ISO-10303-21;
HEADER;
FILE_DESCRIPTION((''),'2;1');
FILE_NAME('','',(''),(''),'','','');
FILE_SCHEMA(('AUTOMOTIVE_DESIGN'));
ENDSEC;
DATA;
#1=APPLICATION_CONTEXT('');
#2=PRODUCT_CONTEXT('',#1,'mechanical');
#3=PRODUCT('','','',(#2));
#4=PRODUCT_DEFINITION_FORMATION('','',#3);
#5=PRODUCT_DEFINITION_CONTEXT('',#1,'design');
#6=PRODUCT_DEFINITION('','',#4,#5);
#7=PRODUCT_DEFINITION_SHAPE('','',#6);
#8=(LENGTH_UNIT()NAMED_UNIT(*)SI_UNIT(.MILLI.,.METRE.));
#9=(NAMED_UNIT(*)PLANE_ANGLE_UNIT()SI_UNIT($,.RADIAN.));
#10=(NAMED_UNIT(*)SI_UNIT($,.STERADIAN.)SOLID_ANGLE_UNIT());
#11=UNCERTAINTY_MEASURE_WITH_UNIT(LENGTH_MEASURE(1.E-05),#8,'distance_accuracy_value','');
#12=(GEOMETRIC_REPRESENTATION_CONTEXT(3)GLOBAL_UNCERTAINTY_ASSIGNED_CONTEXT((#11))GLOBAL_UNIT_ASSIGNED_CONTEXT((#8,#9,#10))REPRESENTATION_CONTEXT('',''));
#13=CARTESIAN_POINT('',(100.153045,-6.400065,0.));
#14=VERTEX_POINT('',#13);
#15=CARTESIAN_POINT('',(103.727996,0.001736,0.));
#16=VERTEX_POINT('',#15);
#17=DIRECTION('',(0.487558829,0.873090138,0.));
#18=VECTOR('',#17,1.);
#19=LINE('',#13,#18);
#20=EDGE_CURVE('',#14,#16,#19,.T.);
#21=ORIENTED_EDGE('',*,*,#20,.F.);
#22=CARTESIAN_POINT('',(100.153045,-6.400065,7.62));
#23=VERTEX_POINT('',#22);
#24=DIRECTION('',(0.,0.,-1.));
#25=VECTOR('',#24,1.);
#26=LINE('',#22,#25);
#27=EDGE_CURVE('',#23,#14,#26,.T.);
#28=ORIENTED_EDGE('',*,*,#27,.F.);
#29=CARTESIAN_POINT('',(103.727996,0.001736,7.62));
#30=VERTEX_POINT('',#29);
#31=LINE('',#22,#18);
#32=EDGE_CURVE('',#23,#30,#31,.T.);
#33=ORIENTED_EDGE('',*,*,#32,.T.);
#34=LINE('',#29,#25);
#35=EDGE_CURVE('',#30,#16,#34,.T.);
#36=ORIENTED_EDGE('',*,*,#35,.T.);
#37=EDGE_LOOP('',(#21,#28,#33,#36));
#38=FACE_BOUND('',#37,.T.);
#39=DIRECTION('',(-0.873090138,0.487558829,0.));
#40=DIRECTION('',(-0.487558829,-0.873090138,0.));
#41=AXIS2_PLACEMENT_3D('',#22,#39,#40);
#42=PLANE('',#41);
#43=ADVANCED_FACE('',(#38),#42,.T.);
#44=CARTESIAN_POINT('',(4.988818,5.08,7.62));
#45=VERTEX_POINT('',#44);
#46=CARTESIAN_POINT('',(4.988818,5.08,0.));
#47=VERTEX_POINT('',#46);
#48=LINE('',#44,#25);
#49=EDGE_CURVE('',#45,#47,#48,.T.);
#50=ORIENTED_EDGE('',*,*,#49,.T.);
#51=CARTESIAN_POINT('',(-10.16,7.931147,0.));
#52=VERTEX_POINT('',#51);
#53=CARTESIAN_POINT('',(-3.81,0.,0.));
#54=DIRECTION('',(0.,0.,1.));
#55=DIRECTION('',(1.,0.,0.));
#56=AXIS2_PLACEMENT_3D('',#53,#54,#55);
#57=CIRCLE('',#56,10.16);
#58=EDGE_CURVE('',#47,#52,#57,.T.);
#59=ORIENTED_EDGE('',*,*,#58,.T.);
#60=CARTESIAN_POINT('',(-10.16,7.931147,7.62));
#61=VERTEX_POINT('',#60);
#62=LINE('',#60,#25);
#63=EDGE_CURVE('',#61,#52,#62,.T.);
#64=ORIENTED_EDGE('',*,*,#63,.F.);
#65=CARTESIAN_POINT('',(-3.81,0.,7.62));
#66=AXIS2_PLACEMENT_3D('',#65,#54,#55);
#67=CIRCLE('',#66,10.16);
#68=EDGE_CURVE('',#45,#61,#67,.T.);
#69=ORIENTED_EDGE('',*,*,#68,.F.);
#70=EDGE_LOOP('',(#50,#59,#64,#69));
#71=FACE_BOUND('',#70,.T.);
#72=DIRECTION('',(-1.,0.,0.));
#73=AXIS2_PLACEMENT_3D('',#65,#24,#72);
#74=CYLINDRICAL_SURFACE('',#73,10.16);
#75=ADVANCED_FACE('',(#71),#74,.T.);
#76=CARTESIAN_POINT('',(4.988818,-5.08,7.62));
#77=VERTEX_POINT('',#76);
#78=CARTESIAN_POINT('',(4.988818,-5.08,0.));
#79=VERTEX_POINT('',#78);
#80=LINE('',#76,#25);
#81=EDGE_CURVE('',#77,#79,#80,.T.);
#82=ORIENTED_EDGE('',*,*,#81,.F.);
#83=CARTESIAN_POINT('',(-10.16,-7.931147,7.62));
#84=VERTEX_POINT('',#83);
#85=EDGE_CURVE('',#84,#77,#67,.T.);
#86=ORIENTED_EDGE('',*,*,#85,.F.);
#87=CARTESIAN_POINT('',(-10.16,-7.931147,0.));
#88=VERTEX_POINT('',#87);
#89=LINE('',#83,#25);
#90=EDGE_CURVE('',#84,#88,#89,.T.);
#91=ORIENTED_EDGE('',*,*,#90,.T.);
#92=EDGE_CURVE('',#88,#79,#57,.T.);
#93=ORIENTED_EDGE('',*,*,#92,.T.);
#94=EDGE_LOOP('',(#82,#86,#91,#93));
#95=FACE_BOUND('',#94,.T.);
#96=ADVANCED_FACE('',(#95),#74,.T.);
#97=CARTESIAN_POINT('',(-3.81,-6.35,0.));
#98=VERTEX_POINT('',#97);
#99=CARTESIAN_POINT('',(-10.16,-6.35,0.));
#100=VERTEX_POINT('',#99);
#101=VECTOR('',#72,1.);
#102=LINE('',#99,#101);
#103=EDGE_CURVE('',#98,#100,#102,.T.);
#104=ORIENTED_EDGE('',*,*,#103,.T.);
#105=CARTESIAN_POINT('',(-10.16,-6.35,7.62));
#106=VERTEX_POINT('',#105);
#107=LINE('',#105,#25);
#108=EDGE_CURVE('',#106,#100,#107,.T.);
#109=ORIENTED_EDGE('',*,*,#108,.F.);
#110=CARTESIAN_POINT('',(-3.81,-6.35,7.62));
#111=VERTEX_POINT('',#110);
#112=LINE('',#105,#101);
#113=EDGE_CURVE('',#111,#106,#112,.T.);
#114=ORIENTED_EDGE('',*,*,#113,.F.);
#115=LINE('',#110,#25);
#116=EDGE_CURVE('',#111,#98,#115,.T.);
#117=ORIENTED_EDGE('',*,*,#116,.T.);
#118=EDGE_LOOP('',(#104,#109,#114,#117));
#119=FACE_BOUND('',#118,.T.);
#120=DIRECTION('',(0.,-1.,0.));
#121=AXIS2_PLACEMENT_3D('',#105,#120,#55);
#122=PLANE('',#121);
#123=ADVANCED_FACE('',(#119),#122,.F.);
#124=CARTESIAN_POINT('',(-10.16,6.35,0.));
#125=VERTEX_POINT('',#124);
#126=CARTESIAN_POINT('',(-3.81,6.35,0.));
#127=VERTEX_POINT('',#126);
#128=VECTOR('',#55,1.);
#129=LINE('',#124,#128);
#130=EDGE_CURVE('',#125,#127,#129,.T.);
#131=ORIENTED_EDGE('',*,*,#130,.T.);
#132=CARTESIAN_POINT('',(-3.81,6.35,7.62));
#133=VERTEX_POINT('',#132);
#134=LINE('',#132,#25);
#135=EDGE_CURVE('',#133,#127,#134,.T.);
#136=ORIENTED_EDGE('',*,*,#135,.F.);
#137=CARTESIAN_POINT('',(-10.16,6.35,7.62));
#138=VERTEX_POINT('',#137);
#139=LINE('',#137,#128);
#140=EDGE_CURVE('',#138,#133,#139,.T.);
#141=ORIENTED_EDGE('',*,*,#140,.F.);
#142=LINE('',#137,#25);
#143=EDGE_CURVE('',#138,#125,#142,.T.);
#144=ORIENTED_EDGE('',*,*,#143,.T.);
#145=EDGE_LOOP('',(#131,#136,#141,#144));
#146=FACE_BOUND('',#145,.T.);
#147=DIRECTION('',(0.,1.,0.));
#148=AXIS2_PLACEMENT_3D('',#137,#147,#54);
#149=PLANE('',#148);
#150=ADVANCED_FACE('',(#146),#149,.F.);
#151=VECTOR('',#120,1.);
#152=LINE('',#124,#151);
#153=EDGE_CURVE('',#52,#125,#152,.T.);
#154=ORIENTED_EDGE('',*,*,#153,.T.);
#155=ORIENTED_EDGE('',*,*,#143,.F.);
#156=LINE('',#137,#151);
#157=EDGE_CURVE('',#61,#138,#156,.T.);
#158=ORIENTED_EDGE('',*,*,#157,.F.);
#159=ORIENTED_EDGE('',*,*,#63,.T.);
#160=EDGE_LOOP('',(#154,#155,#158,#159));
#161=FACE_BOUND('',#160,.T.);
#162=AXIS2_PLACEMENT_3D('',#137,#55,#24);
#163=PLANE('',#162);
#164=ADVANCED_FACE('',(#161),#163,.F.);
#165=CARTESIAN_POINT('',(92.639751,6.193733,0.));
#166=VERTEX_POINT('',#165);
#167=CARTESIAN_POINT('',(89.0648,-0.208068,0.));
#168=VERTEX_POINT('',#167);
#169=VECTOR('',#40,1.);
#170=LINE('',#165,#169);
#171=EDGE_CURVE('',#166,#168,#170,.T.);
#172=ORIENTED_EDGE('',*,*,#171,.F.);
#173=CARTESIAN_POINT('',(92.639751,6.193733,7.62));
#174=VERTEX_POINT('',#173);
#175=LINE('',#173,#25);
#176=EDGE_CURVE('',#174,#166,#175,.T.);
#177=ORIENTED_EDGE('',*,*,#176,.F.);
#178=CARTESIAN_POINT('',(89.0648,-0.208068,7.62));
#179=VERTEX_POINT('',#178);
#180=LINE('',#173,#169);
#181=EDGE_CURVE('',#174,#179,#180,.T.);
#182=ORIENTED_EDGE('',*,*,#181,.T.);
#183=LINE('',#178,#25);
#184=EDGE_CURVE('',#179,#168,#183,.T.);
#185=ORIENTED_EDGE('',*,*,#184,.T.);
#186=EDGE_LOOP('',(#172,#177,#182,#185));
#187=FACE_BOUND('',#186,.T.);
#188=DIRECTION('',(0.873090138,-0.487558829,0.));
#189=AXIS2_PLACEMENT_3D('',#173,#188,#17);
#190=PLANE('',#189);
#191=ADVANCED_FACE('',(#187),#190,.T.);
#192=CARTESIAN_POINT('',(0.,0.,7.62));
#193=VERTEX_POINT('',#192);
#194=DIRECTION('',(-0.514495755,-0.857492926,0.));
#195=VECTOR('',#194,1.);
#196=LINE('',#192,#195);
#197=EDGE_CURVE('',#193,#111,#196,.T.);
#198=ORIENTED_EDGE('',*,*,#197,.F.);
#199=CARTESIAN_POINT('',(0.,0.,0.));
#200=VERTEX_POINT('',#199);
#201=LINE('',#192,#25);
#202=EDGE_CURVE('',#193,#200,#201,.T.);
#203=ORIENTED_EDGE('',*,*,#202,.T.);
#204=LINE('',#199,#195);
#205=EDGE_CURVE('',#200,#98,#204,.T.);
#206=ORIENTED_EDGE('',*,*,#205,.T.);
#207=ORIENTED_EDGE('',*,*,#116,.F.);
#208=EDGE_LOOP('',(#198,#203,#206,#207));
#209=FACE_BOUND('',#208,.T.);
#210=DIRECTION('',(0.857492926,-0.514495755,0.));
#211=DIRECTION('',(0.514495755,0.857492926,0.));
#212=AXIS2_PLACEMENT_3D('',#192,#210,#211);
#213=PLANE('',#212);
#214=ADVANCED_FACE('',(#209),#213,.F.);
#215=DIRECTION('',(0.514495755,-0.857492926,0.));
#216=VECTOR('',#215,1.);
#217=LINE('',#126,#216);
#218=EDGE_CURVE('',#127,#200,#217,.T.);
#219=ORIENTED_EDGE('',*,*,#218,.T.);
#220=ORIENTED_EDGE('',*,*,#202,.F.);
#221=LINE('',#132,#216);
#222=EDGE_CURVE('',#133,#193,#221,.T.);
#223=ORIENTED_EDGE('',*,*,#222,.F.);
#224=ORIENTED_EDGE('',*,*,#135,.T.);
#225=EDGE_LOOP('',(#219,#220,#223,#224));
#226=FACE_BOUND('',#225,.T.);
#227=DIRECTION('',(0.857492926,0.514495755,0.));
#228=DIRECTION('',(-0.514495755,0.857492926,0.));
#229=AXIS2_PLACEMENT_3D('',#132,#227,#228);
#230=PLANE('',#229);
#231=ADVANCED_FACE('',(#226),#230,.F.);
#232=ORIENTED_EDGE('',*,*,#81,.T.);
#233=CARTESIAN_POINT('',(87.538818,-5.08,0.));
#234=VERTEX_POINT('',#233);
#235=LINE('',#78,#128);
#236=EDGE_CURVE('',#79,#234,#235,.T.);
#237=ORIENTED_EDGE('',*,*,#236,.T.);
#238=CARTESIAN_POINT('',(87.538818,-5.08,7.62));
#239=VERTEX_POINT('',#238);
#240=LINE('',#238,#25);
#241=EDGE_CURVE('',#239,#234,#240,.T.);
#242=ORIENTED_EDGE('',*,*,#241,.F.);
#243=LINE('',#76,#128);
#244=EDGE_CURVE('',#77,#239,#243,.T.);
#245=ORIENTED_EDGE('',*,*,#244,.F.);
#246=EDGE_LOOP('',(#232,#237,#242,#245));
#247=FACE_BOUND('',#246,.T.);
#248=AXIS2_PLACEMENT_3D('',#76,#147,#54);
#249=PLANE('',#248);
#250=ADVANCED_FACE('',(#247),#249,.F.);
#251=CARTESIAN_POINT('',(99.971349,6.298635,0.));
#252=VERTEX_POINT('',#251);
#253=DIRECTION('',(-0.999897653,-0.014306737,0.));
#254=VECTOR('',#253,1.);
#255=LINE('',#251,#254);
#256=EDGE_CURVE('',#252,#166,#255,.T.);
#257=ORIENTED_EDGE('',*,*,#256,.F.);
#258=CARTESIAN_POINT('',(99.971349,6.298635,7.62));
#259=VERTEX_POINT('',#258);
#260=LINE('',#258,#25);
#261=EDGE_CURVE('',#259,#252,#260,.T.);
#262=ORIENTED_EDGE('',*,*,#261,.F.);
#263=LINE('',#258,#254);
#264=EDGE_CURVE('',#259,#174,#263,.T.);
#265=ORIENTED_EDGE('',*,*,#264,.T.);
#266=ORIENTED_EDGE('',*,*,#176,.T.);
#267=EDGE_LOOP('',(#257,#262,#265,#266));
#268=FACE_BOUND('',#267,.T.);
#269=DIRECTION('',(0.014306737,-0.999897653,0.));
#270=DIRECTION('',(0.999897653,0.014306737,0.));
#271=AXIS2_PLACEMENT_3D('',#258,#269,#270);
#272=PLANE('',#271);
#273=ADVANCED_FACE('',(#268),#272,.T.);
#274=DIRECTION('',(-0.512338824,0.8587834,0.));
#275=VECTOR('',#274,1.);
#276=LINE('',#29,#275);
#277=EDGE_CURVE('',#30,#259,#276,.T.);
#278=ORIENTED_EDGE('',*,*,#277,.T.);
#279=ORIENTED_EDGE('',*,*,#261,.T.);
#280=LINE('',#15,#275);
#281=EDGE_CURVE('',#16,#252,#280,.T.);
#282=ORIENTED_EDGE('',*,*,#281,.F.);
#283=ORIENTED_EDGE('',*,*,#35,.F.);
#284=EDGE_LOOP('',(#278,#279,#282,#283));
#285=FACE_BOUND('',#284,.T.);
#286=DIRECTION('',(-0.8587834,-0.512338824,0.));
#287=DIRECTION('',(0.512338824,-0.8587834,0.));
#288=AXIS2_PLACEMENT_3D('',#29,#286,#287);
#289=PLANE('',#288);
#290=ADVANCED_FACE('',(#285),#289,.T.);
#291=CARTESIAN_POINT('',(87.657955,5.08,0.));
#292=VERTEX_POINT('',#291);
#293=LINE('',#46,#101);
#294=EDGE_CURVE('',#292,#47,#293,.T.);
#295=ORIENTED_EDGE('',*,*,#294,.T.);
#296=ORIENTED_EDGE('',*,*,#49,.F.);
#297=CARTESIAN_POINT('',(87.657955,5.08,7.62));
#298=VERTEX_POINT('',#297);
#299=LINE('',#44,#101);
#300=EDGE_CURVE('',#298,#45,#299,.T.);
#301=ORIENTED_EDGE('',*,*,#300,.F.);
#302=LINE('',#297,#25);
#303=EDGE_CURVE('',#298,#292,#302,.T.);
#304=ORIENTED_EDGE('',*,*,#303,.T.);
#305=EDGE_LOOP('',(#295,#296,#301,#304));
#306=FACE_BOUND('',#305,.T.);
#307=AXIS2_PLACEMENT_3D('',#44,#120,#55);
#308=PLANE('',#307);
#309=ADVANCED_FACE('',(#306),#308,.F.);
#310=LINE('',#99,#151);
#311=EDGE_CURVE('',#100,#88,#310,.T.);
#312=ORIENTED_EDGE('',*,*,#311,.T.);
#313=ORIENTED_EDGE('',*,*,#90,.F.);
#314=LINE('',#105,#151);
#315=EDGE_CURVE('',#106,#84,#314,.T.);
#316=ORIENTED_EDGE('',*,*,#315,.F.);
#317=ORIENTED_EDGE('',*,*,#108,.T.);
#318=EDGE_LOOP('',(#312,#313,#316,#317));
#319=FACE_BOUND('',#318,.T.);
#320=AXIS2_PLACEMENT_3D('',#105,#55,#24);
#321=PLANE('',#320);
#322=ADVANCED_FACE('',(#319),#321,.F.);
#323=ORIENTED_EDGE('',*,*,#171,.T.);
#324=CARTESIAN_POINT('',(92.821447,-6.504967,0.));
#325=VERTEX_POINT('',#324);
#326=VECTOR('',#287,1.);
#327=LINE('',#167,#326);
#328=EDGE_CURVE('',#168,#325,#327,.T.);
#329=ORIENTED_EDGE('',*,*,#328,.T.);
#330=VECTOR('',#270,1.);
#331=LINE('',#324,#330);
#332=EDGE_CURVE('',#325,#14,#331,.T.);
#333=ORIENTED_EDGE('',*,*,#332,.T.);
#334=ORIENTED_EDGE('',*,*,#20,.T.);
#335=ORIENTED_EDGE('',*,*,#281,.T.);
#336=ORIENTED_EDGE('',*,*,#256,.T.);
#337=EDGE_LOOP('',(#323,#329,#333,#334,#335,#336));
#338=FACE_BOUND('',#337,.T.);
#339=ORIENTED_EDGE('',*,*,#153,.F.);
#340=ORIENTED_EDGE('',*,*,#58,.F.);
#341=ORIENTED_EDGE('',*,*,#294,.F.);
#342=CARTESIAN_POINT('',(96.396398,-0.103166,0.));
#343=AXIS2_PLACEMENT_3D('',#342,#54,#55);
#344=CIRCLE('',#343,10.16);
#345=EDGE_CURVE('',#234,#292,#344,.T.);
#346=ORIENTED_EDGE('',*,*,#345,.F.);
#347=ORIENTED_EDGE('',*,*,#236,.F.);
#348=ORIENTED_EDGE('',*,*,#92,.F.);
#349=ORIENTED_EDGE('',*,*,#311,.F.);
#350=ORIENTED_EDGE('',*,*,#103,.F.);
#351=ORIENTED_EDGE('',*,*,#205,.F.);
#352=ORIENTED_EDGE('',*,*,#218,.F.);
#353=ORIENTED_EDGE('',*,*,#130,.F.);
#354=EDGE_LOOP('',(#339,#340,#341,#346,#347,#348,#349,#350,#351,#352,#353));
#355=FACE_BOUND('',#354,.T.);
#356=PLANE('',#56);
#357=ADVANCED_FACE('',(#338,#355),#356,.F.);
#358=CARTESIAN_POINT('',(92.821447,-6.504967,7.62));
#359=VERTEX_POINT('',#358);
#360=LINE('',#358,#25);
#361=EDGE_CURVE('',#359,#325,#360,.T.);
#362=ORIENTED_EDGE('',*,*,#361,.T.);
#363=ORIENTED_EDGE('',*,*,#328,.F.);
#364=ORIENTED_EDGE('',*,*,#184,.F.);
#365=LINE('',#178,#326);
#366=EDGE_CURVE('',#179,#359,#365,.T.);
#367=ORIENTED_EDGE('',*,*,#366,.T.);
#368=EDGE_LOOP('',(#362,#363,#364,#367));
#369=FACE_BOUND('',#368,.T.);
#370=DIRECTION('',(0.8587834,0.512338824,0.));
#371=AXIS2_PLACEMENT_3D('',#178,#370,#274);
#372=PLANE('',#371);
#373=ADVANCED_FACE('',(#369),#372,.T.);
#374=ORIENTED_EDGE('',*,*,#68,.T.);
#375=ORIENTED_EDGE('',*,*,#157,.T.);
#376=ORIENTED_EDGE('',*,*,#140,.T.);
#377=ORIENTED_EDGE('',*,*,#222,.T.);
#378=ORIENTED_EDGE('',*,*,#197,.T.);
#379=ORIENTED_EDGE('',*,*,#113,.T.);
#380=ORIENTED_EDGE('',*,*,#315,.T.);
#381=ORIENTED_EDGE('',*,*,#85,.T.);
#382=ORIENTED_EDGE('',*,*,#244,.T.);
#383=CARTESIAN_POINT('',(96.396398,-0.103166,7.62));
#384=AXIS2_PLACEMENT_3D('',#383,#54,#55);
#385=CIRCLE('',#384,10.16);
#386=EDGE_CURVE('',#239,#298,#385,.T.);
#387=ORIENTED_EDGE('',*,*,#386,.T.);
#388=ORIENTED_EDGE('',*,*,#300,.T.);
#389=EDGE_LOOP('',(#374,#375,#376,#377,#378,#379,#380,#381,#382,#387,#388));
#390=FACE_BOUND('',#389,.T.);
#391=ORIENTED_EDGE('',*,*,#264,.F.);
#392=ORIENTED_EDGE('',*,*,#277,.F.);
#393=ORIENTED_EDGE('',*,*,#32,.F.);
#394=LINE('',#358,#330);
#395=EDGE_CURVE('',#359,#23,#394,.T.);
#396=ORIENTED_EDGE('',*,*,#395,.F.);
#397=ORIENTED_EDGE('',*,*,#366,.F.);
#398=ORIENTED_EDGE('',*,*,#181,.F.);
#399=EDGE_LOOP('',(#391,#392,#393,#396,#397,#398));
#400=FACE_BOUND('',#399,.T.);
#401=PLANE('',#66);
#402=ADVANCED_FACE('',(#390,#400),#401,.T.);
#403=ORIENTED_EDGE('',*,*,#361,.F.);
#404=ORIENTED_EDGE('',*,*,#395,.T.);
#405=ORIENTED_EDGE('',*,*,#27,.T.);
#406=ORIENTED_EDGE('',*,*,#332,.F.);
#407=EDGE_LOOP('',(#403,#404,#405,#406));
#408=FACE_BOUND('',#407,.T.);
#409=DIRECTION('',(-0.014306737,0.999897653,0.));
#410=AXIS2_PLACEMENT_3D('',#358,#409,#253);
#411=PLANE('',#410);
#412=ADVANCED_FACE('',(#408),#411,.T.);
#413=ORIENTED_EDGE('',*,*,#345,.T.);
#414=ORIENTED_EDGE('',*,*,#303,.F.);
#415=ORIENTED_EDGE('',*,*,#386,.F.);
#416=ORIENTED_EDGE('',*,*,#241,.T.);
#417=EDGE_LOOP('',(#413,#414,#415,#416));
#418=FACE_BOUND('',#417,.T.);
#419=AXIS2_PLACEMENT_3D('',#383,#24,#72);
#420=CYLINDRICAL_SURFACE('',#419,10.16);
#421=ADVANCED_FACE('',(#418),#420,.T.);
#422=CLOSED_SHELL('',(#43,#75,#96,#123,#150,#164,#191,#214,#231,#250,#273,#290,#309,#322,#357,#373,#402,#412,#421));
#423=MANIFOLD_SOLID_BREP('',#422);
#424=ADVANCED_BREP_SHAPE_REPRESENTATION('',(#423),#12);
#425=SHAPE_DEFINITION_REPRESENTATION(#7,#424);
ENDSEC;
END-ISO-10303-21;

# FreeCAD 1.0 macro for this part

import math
import FreeCAD as App
import Part
import Sketcher
from FreeCAD import Vector
Q = App.Units.Quantity

doc = App.newDocument("Part")
body = doc.addObject("PartDesign::Body", "Body")

sketch1 = body.newObject("Sketcher::SketchObject", "Sketch")
sketch1.AttachmentSupport = (doc.getObject("XY_Plane"), [""])
sketch1.MapMode = "FlatFace"
sketch1.addGeometry(Part.LineSegment(Vector(-10.16, 6.35, 0), Vector(-3.81, 6.35, 0)), False)
sketch1.addGeometry(Part.LineSegment(Vector(-3.81, 6.35, 0), Vector(0, 0, 0)), False)
sketch1.addGeometry(Part.LineSegment(Vector(0, 0, 0), Vector(-3.81, -6.35, 0)), False)
sketch1.addGeometry(Part.LineSegment(Vector(-3.81, -6.35, 0), Vector(-10.16, -6.35, 0)), False)
sketch1.addGeometry(Part.LineSegment(Vector(-10.16, -6.35, 0), Vector(-10.16, -7.931147, 0)), False)
sketch1.addGeometry(Part.ArcOfCircle(Part.Circle(Vector(-3.81, 0, 0), Vector(0, 0, 1), 10.16), math.radians(-128.682187), math.radians(-30)), False)
sketch1.addGeometry(Part.LineSegment(Vector(4.988818, -5.08, 0), Vector(87.538818, -5.08, 0)), False)
sketch1.addGeometry(Part.ArcOfCircle(Part.Circle(Vector(96.396398, -0.103166, 0), Vector(0, 0, 1), 10.16), math.radians(-150.669548), math.radians(149.325903)), False)
sketch1.addGeometry(Part.LineSegment(Vector(87.657955, 5.08, 0), Vector(4.988818, 5.08, 0)), False)
sketch1.addGeometry(Part.ArcOfCircle(Part.Circle(Vector(-3.81, 0, 0), Vector(0, 0, 1), 10.16), math.radians(30), math.radians(128.682187)), False)
sketch1.addGeometry(Part.LineSegment(Vector(-10.16, 7.931147, 0), Vector(-10.16, 6.35, 0)), False)
sketch1.addGeometry(Part.LineSegment(Vector(103.727996, 0.001736, 0), Vector(100.153045, -6.400065, 0)), False)
sketch1.addGeometry(Part.LineSegment(Vector(100.153045, -6.400065, 0), Vector(92.821447, -6.504967, 0)), False)
sketch1.addGeometry(Part.LineSegment(Vector(92.821447, -6.504967, 0), Vector(89.0648, -0.208068, 0)), False)
sketch1.addGeometry(Part.LineSegment(Vector(89.0648, -0.208068, 0), Vector(92.639751, 6.193733, 0)), False)
sketch1.addGeometry(Part.LineSegment(Vector(92.639751, 6.193733, 0), Vector(99.971349, 6.298635, 0)), False)
sketch1.addGeometry(Part.LineSegment(Vector(99.971349, 6.298635, 0), Vector(103.727996, 0.001736, 0)), False)
sketch1.addConstraint(Sketcher.Constraint("Coincident", 0, 2, 1, 1))
sketch1.addConstraint(Sketcher.Constraint("Coincident", 1, 2, 2, 1))
sketch1.addConstraint(Sketcher.Constraint("Coincident", 2, 2, 3, 1))
sketch1.addConstraint(Sketcher.Constraint("Coincident", 3, 2, 4, 1))
sketch1.addConstraint(Sketcher.Constraint("Coincident", 4, 2, 5, 1))
sketch1.addConstraint(Sketcher.Constraint("Coincident", 5, 2, 6, 1))
sketch1.addConstraint(Sketcher.Constraint("Coincident", 6, 2, 7, 1))
sketch1.addConstraint(Sketcher.Constraint("Coincident", 7, 2, 8, 1))
sketch1.addConstraint(Sketcher.Constraint("Coincident", 8, 2, 9, 1))
sketch1.addConstraint(Sketcher.Constraint("Coincident", 9, 2, 10, 1))
sketch1.addConstraint(Sketcher.Constraint("Coincident", 10, 2, 0, 1))
sketch1.addConstraint(Sketcher.Constraint("Coincident", 11, 2, 12, 1))
sketch1.addConstraint(Sketcher.Constraint("Coincident", 12, 2, 13, 1))
sketch1.addConstraint(Sketcher.Constraint("Coincident", 13, 2, 14, 1))
sketch1.addConstraint(Sketcher.Constraint("Coincident", 14, 2, 15, 1))
sketch1.addConstraint(Sketcher.Constraint("Coincident", 15, 2, 16, 1))
sketch1.addConstraint(Sketcher.Constraint("Coincident", 16, 2, 11, 1))
sketch1.addConstraint(Sketcher.Constraint("Horizontal", 0))
sketch1.addConstraint(Sketcher.Constraint("Horizontal", 3))
sketch1.addConstraint(Sketcher.Constraint("Vertical", 4))
sketch1.addConstraint(Sketcher.Constraint("Horizontal", 6))
sketch1.addConstraint(Sketcher.Constraint("Horizontal", 8))
sketch1.addConstraint(Sketcher.Constraint("Vertical", 10))
sketch1.addConstraint(Sketcher.Constraint("Coincident", 1, 2, -1, 1))
sketch1.addConstraint(Sketcher.Constraint("Coincident", 9, 3, 5, 3))
sketch1.addConstraint(Sketcher.Constraint("Equal", 5, 7))
sketch1.addConstraint(Sketcher.Constraint("Equal", 7, 9))
sketch1.addConstraint(Sketcher.Constraint("Symmetric", 0, 2, 2, 2, -1))
sketch1.addConstraint(Sketcher.Constraint("Symmetric", 5, 2, 8, 2, -1))
sketch1.addConstraint(Sketcher.Constraint("Parallel", 11, 14))
sketch1.addConstraint(Sketcher.Constraint("Parallel", 12, 15))
sketch1.addConstraint(Sketcher.Constraint("Parallel", 13, 16))
sketch1.addConstraint(Sketcher.Constraint("Vertical", 9, 3, 0, 2))
sketch1.addConstraint(Sketcher.Constraint("Vertical", 4, 2, 9, 2))
sketch1.addConstraint(Sketcher.Constraint("Equal", 11, 12))
sketch1.addConstraint(Sketcher.Constraint("Equal", 12, 13))
sketch1.addConstraint(Sketcher.Constraint("Equal", 13, 14))
sketch1.addConstraint(Sketcher.Constraint("Radius", 5, Q("0.4 in")))
sketch1.addConstraint(Sketcher.Constraint("DistanceX", 0, 1, 0, 2, Q("0.25 in")))
sketch1.addConstraint(Sketcher.Constraint("DistanceX", 6, 1, 6, 2, Q("3.25 in")))
sketch1.addConstraint(Sketcher.Constraint("DistanceX", 3, 2, -1, 1, Q("0.4 in")))
sketch1.addConstraint(Sketcher.Constraint("DistanceY", 5, 2, -1, 1, Q("0.2 in")))
sketch1.addConstraint(Sketcher.Constraint("DistanceY", 2, 2, 0, 2, Q("0.5 in")))
sketch1.addConstraint(Sketcher.Constraint("DistanceX", -1, 1, 7, 3, Q("96.396398 mm")))
sketch1.addConstraint(Sketcher.Constraint("DistanceX", -1, 1, 13, 2, Q("89.0648 mm")))
sketch1.addConstraint(Sketcher.Constraint("DistanceY", 11, 2, 7, 3, Q("6.296899 mm")))
sketch1.addConstraint(Sketcher.Constraint("DistanceY", 12, 2, 7, 3, Q("6.401801 mm")))
sketch1.addConstraint(Sketcher.Constraint("DistanceY", 13, 2, 7, 3, Q("0.104902 mm")))
sketch1.addConstraint(Sketcher.Constraint("DistanceY", 13, 2, 14, 2, Q("6.401801 mm")))
sketch1.addConstraint(Sketcher.Constraint("Distance", 11, Q("7.332348 mm")))
pad1 = body.newObject("PartDesign::Pad", "Pad")
pad1.Profile = sketch1
pad1.Length = Q("0.3 in")

doc.recompute()
